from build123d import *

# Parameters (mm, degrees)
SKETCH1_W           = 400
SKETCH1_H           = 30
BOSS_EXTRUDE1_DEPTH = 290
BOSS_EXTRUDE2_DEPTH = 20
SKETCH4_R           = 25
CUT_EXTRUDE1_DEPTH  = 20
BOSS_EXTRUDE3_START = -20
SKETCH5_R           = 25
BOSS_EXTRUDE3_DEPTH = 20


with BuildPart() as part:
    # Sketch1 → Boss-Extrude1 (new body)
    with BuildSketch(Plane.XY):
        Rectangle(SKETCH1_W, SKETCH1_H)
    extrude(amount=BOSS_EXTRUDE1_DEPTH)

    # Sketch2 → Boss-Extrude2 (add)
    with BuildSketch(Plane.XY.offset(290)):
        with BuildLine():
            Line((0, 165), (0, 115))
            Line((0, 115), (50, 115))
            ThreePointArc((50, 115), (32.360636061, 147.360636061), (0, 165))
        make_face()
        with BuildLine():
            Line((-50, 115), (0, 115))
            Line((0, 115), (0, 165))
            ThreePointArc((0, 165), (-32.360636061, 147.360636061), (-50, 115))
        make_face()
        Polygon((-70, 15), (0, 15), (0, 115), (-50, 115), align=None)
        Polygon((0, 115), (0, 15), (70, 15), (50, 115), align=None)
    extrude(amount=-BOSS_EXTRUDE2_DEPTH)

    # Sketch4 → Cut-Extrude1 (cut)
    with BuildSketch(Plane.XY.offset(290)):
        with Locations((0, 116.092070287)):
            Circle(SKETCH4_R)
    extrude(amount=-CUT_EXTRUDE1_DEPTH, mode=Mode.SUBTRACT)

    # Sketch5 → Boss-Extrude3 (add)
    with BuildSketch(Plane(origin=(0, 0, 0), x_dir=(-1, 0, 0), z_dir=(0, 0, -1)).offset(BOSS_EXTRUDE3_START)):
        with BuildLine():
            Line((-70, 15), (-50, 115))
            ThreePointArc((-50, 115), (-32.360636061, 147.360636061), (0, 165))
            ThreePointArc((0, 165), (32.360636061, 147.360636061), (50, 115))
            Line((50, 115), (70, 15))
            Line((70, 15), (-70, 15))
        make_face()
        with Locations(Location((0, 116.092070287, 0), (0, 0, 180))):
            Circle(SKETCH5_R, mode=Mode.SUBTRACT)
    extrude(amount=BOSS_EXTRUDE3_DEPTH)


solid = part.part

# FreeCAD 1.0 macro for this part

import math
import FreeCAD as App
import Part
import Sketcher

V = App.Vector
Q = App.Units.Quantity

doc = App.newDocument("Part")
body = doc.addObject("PartDesign::Body", "Body")

# Sketch on XY plane
sketch1 = body.newObject("Sketcher::SketchObject", "Sketch")
sketch1.AttachmentSupport = (doc.getObject("XY_Plane"), [""])
sketch1.MapMode = "FlatFace"
sketch1.addGeometry([
    Part.LineSegment(V(-200, 15, 0), V(-200, -15, 0)),
    Part.LineSegment(V(-200, -15, 0), V(200, -15, 0)),
    Part.LineSegment(V(200, -15, 0), V(200, 15, 0)),
    Part.LineSegment(V(200, 15, 0), V(-200, 15, 0)),
], False)
sketch1.addConstraint([
    Sketcher.Constraint("Coincident", 0, 2, 1, 1),
    Sketcher.Constraint("Coincident", 1, 2, 2, 1),
    Sketcher.Constraint("Coincident", 2, 2, 3, 1),
    Sketcher.Constraint("Coincident", 3, 2, 0, 1),
    Sketcher.Constraint("Vertical", 0),
    Sketcher.Constraint("Horizontal", 1),
    Sketcher.Constraint("Vertical", 2),
    Sketcher.Constraint("Horizontal", 3),
    Sketcher.Constraint("Symmetric", 0, 2, 2, 2, -1, 1),
    Sketcher.Constraint("DistanceX", 1, 1, 1, 2, Q("400 mm")),
    Sketcher.Constraint("DistanceY", 0, 2, 0, 1, Q("30 mm")),
])
pad1 = body.newObject("PartDesign::Pad", "Pad")
pad1.Profile = sketch1
pad1.Length = 290

# Sketch on XY plane
sketch2 = body.newObject("Sketcher::SketchObject", "Sketch001")
sketch2.AttachmentSupport = (doc.getObject("XY_Plane"), [""])
sketch2.MapMode = "FlatFace"
sketch2.AttachmentOffset = App.Placement(V(0, 0, 290), App.Rotation())
sketch2.addGeometry([
    Part.ArcOfCircle(Part.Circle(V(-14, 101, 0), V(0, 0, 1), 65), math.radians(12), math.radians(78)),  # 0
    Part.ArcOfCircle(Part.Circle(V(14, 101, 0), V(0, 0, 1), 65), math.radians(102), math.radians(168)),  # 1
    Part.LineSegment(V(-50, 115, 0), V(-70, 15, 0)),  # 2
    Part.LineSegment(V(-70, 15, 0), V(70, 15, 0)),  # 3
    Part.LineSegment(V(70, 15, 0), V(50, 115, 0)),  # 4
], False)
sketch2.addConstraint([
    Sketcher.Constraint("Coincident", 0, 2, 1, 1),
    Sketcher.Constraint("Coincident", 1, 2, 2, 1),
    Sketcher.Constraint("Coincident", 2, 2, 3, 1),
    Sketcher.Constraint("Coincident", 3, 2, 4, 1),
    Sketcher.Constraint("Coincident", 4, 2, 0, 1),
    Sketcher.Constraint("Horizontal", 3),
    Sketcher.Constraint("Equal", 0, 1),
    Sketcher.Constraint("Symmetric", 0, 3, 1, 3, -2),
    Sketcher.Constraint("Horizontal", 1, 2, 4, 2),
    Sketcher.Constraint("Equal", 2, 4),
    Sketcher.Constraint("DistanceX", 3, 1, 3, 2, Q("140 mm")),
    Sketcher.Constraint("DistanceY", -1, 1, 0, 2, Q("165 mm")),
    Sketcher.Constraint("DistanceX", 1, 2, -1, 1, Q("50 mm")),
    Sketcher.Constraint("DistanceY", -1, 1, 1, 2, Q("115 mm")),
    Sketcher.Constraint("DistanceY", -1, 1, 2, 2, Q("15 mm")),
    Sketcher.Constraint("Radius", 0, Q("65.245999 mm")),
])
pad2 = body.newObject("PartDesign::Pad", "Pad001")
pad2.Profile = sketch2
pad2.Length = 20
pad2.Reversed = True

# Sketch on XY plane
sketch3 = body.newObject("Sketcher::SketchObject", "Sketch002")
sketch3.AttachmentSupport = (doc.getObject("XY_Plane"), [""])
sketch3.MapMode = "FlatFace"
sketch3.AttachmentOffset = App.Placement(V(0, 0, 290), App.Rotation())
sketch3.addGeometry(Part.Circle(V(0, 116, 0), V(0, 0, 1), 25), False)
sketch3.addConstraint([
    Sketcher.Constraint("PointOnObject", 0, 3, -2),
    Sketcher.Constraint("Diameter", 0, Q("50 mm")),
    Sketcher.Constraint("DistanceY", -1, 1, 0, 3, Q("116.09207 mm")),
])
pocket1 = body.newObject("PartDesign::Pocket", "Pocket")
pocket1.Profile = sketch3
pocket1.Length = 20

# Sketch on XY plane
sketch4 = body.newObject("Sketcher::SketchObject", "Sketch003")
sketch4.AttachmentSupport = (doc.getObject("XY_Plane"), [""])
sketch4.MapMode = "FlatFace"
sketch4.AttachmentOffset = App.Placement(V(0, 0, 20), App.Rotation())
sketch4.addGeometry([
    Part.LineSegment(V(50, 115, 0), V(70, 15, 0)),  # 0
    Part.LineSegment(V(70, 15, 0), V(-70, 15, 0)),  # 1
    Part.LineSegment(V(-70, 15, 0), V(-50, 115, 0)),  # 2
    Part.ArcOfCircle(Part.Circle(V(14, 101, 0), V(0, 0, 1), 65), math.radians(102), math.radians(168)),  # 3
    Part.ArcOfCircle(Part.Circle(V(-14, 101, 0), V(0, 0, 1), 65), math.radians(12), math.radians(78)),  # 4
    Part.Circle(V(0, 116, 0), V(0, 0, 1), 25),  # 5
], False)
sketch4.addConstraint([
    Sketcher.Constraint("Coincident", 0, 2, 1, 1),
    Sketcher.Constraint("Coincident", 1, 2, 2, 1),
    Sketcher.Constraint("Coincident", 2, 2, 3, 2),
    Sketcher.Constraint("Coincident", 3, 1, 4, 2),
    Sketcher.Constraint("Coincident", 4, 1, 0, 1),
    Sketcher.Constraint("Horizontal", 1),
    Sketcher.Constraint("Equal", 3, 4),
    Sketcher.Constraint("Symmetric", 3, 3, 4, 3, -2),
    Sketcher.Constraint("PointOnObject", 5, 3, -2),
    Sketcher.Constraint("Horizontal", 2, 2, 4, 1),
    Sketcher.Constraint("Equal", 0, 2),
    Sketcher.Constraint("Diameter", 5, Q("50 mm")),
    Sketcher.Constraint("DistanceX", 1, 2, 1, 1, Q("140 mm")),
    Sketcher.Constraint("DistanceY", -1, 1, 0, 2, Q("15 mm")),
    Sketcher.Constraint("DistanceX", 2, 2, -1, 1, Q("50 mm")),
    Sketcher.Constraint("DistanceY", -1, 1, 2, 2, Q("115 mm")),
    Sketcher.Constraint("DistanceY", -1, 1, 3, 1, Q("165 mm")),
    Sketcher.Constraint("Radius", 3, Q("65.245999 mm")),
    Sketcher.Constraint("DistanceY", -1, 1, 5, 3, Q("116.09207 mm")),
])
pad3 = body.newObject("PartDesign::Pad", "Pad002")
pad3.Profile = sketch4
pad3.Length = 20
pad3.Reversed = True

doc.recompute()
